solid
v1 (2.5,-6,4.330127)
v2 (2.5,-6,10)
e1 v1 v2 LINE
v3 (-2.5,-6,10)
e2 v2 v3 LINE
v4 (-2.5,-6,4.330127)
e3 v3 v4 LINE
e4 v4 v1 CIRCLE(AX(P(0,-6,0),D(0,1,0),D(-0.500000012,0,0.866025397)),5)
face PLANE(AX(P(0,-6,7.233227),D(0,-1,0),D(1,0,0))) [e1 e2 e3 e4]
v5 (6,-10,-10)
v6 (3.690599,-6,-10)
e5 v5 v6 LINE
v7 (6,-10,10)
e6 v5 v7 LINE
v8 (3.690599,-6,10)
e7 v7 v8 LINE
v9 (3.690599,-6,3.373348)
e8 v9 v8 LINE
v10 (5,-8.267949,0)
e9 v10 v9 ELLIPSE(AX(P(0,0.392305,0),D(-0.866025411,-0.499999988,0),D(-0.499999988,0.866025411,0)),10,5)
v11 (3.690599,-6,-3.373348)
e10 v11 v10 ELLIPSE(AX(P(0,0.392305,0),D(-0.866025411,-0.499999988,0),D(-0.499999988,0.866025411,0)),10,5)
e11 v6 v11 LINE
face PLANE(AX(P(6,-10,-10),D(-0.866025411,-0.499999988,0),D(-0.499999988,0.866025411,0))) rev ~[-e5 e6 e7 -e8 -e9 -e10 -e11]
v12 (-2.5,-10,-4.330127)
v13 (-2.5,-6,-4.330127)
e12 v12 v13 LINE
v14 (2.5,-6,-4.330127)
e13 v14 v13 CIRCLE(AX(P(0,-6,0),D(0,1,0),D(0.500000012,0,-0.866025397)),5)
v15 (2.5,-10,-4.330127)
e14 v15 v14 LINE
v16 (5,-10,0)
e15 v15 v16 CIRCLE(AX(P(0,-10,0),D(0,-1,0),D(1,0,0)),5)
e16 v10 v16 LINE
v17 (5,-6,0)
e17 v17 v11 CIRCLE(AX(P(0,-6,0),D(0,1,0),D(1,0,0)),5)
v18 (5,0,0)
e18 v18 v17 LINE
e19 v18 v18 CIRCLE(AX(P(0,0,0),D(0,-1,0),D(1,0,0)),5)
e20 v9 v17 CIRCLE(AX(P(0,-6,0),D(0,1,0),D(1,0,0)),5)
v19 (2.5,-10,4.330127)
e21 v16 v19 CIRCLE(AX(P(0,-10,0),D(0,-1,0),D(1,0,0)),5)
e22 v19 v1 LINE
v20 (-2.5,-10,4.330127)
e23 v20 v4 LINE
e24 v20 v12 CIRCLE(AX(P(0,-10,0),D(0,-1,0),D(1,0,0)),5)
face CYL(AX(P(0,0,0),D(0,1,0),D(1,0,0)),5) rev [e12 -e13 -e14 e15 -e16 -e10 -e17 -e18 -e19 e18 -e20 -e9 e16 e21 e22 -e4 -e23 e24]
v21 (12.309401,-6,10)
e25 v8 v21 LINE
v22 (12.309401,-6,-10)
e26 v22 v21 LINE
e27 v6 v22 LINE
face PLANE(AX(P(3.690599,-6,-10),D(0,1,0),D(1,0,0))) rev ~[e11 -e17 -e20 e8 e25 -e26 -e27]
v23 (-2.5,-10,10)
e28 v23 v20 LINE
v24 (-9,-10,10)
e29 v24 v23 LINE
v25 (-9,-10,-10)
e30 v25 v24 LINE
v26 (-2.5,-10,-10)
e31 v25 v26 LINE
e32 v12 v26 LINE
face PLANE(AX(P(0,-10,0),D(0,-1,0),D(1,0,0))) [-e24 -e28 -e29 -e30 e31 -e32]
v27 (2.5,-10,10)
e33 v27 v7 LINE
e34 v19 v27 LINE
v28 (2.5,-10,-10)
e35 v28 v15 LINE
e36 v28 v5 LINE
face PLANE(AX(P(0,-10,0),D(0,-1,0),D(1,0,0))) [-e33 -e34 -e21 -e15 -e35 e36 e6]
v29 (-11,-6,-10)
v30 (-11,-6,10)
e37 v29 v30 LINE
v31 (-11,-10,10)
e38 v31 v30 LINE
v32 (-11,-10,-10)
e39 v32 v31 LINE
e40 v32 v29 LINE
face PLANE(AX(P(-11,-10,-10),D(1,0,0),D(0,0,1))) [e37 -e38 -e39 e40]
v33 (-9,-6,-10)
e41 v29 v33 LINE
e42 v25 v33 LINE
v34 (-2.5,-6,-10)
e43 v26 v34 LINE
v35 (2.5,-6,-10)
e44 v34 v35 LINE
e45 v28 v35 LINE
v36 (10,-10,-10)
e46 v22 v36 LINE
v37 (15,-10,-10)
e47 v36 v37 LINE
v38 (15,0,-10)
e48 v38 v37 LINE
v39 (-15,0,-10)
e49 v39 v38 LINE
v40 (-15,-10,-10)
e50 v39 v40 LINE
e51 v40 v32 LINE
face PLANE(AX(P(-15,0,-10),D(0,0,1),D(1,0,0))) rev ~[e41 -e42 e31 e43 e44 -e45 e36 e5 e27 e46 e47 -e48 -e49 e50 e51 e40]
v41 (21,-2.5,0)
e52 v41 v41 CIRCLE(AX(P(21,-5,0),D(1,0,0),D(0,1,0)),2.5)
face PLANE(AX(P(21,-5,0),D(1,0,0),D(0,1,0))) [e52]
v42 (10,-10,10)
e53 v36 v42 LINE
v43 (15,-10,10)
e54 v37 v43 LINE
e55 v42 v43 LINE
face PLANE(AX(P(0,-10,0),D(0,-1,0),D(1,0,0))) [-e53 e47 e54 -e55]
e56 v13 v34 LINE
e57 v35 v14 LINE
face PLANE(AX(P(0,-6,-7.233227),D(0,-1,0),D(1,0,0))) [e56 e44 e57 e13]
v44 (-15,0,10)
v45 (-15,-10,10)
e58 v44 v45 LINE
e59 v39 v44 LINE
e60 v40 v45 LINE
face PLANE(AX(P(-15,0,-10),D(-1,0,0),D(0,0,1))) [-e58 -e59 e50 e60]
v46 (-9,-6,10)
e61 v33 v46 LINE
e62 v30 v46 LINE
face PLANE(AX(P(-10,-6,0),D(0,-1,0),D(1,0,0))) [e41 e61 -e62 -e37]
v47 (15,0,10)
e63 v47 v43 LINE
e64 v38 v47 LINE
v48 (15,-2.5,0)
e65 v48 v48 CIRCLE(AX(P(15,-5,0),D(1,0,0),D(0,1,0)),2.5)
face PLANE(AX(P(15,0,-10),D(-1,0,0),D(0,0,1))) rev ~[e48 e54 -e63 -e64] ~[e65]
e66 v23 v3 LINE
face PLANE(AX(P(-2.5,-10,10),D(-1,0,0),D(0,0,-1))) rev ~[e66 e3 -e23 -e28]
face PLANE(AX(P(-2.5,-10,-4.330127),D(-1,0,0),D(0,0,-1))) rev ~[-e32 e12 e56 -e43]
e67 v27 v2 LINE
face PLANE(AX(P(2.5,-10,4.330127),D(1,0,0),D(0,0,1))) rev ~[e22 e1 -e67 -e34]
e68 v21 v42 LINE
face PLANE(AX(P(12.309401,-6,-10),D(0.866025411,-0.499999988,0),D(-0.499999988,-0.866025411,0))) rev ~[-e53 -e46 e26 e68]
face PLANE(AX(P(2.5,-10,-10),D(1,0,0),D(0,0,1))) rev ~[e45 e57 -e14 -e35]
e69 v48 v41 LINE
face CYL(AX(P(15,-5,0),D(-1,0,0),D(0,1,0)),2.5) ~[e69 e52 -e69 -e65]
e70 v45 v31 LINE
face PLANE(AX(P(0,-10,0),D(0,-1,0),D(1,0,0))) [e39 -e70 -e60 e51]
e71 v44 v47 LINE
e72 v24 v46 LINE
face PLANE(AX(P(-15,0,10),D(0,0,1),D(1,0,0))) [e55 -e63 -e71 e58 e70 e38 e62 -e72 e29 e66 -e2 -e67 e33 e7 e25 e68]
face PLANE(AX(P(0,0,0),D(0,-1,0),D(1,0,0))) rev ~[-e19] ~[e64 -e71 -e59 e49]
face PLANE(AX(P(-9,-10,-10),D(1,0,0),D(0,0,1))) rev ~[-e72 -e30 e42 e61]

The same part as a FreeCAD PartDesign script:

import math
import FreeCAD as App
import Part
import Sketcher
Q = App.Units.Quantity

doc = App.newDocument("Part")
body = doc.addObject("PartDesign::Body", "Body")

sketch1 = body.newObject("Sketcher::SketchObject", "Sketch")
sketch1.AttachmentSupport = (doc.getObject("XZ_Plane"), [""])
sketch1.MapMode = "FlatFace"
sketch1.addGeometry([
    Part.LineSegment(App.Vector(-15, 10, 0), App.Vector(-15, -10, 0)),
    Part.LineSegment(App.Vector(-15, -10, 0), App.Vector(15, -10, 0)),
    Part.LineSegment(App.Vector(15, -10, 0), App.Vector(15, 10, 0)),
    Part.LineSegment(App.Vector(15, 10, 0), App.Vector(-15, 10, 0)),
    Part.Circle(App.Vector(0, 0, 0), App.Vector(0, 0, 1), 5),
], False)
sketch1.addConstraint([
    Sketcher.Constraint("Coincident", 0, 2, 1, 1),
    Sketcher.Constraint("Coincident", 1, 2, 2, 1),
    Sketcher.Constraint("Coincident", 2, 2, 3, 1),
    Sketcher.Constraint("Coincident", 3, 2, 0, 1),
    Sketcher.Constraint("Vertical", 0),
    Sketcher.Constraint("Horizontal", 1),
    Sketcher.Constraint("Vertical", 2),
    Sketcher.Constraint("Horizontal", 3),
    Sketcher.Constraint("Coincident", 4, 3, -1, 1),
    Sketcher.Constraint("Symmetric", 0, 2, 2, 2, -1, 1),
    Sketcher.Constraint("Diameter", 4, 10.0),
    Sketcher.Constraint("DistanceX", 1, 1, 1, 2, 30.0),
    Sketcher.Constraint("DistanceY", 0, 2, 0, 1, 20.0),
])
pad1 = body.newObject("PartDesign::Pad", "Pad")
pad1.Profile = sketch1
pad1.Length = 10

sketch2 = body.newObject("Sketcher::SketchObject", "Sketch001")
sketch2.AttachmentSupport = (doc.getObject("XZ_Plane"), [""])
sketch2.MapMode = "FlatFace"
sketch2.AttachmentOffset = App.Placement(App.Vector(0, 0, 10), App.Rotation())
sketch2.addGeometry([
    Part.LineSegment(App.Vector(-11, 10, 0), App.Vector(-11, -10, 0)),
    Part.LineSegment(App.Vector(-11, -10, 0), App.Vector(-9, -10, 0)),
    Part.LineSegment(App.Vector(-9, -10, 0), App.Vector(-9, 10, 0)),
    Part.LineSegment(App.Vector(-9, 10, 0), App.Vector(-11, 10, 0)),
    Part.LineSegment(App.Vector(2.5, 10, 0), App.Vector(-2.5, 10, 0)),
    Part.LineSegment(App.Vector(-2.5, 10, 0), App.Vector(-2.5, 4.330127, 0)),
    Part.ArcOfCircle(Part.Circle(App.Vector(0, 0, 0), App.Vector(0, 0, 1), 5), math.radians(59.999999), math.radians(120.000001)),
    Part.LineSegment(App.Vector(2.5, 4.330127, 0), App.Vector(2.5, 10, 0)),
    Part.LineSegment(App.Vector(-2.5, -4.330127, 0), App.Vector(-2.5, -10, 0)),
    Part.LineSegment(App.Vector(-2.5, -10, 0), App.Vector(2.5, -10, 0)),
    Part.LineSegment(App.Vector(2.5, -10, 0), App.Vector(2.5, -4.330127, 0)),
    Part.ArcOfCircle(Part.Circle(App.Vector(0, 0, 0), App.Vector(0, 0, 1), 5), math.radians(-120.000001), math.radians(-59.999999)),
], False)
sketch2.addConstraint([
    Sketcher.Constraint("Coincident", 0, 2, 1, 1),
    Sketcher.Constraint("Coincident", 1, 2, 2, 1),
    Sketcher.Constraint("Coincident", 2, 2, 3, 1),
    Sketcher.Constraint("Coincident", 3, 2, 0, 1),
    Sketcher.Constraint("Coincident", 4, 2, 5, 1),
    Sketcher.Constraint("Coincident", 5, 2, 6, 2),
    Sketcher.Constraint("Coincident", 6, 1, 7, 1),
    Sketcher.Constraint("Coincident", 7, 2, 4, 1),
    Sketcher.Constraint("Coincident", 8, 2, 9, 1),
    Sketcher.Constraint("Coincident", 9, 2, 10, 1),
    Sketcher.Constraint("Coincident", 10, 2, 11, 2),
    Sketcher.Constraint("Coincident", 11, 1, 8, 1),
    Sketcher.Constraint("Vertical", 0),
    Sketcher.Constraint("Horizontal", 1),
    Sketcher.Constraint("Vertical", 2),
    Sketcher.Constraint("Horizontal", 3),
    Sketcher.Constraint("Horizontal", 4),
    Sketcher.Constraint("Vertical", 5),
    Sketcher.Constraint("Vertical", 7),
    Sketcher.Constraint("Vertical", 8),
    Sketcher.Constraint("Horizontal", 9),
    Sketcher.Constraint("Vertical", 10),
    Sketcher.Constraint("Coincident", 6, 3, -1, 1),
    Sketcher.Constraint("Coincident", 11, 3, -1, 1),
    Sketcher.Constraint("Equal", 6, 11),
    Sketcher.Constraint("Symmetric", 7, 2, 8, 2, -1, 1),
    Sketcher.Constraint("Horizontal", 3, 2, 4, 2),
    Sketcher.Constraint("Horizontal", 5, 2, 6, 1),
    Sketcher.Constraint("Horizontal", 1, 2, 8, 2),
    Sketcher.Constraint("Horizontal", 10, 2, 11, 1),
    Sketcher.Constraint("Radius", 6, 5.0),
    Sketcher.Constraint("DistanceX", 1, 1, 1, 2, 2.0),
    Sketcher.Constraint("DistanceX", 4, 2, 4, 1, 5.0),
    Sketcher.Constraint("DistanceY", 0, 2, 0, 1, 20.0),
    Sketcher.Constraint("DistanceX", 0, 2, -1, 1, 11.0),
])
pocket1 = body.newObject("PartDesign::Pocket", "Pocket")
pocket1.Profile = sketch2
pocket1.Length = 4

sketch3 = body.newObject("Sketcher::SketchObject", "Sketch002")
sketch3.AttachmentSupport = (doc.getObject("XY_Plane"), [""])
sketch3.MapMode = "FlatFace"
sketch3.AttachmentOffset = App.Placement(App.Vector(0, 0, -10), App.Rotation())
sketch3.addGeometry([
    Part.LineSegment(App.Vector(10, -10, 0), App.Vector(6, -10, 0)),
    Part.LineSegment(App.Vector(6, -10, 0), App.Vector(3.690599, -6, 0)),
    Part.LineSegment(App.Vector(3.690599, -6, 0), App.Vector(12.309401, -6, 0)),
    Part.LineSegment(App.Vector(12.309401, -6, 0), App.Vector(10, -10, 0)),
], False)
sketch3.addConstraint([
    Sketcher.Constraint("Coincident", 0, 2, 1, 1),
    Sketcher.Constraint("Coincident", 1, 2, 2, 1),
    Sketcher.Constraint("Coincident", 2, 2, 3, 1),
    Sketcher.Constraint("Coincident", 3, 2, 0, 1),
    Sketcher.Constraint("Horizontal", 0),
    Sketcher.Constraint("Horizontal", 2),
    Sketcher.Constraint("Equal", 1, 3),
    Sketcher.Constraint("DistanceX", 0, 2, 0, 1, 4.0),
    Sketcher.Constraint("Angle", 1, Q("119.999999 deg")),
    Sketcher.Constraint("DistanceX", -1, 1, 0, 2, 6.0),
    Sketcher.Constraint("DistanceY", 0, 2, -1, 1, 10.0),
    Sketcher.Constraint("DistanceY", 1, 2, -1, 1, 6.0),
])
pocket2 = body.newObject("PartDesign::Pocket", "Pocket001")
pocket2.Profile = sketch3
pocket2.Type = "ThroughAll"
pocket2.Reversed = True

sketch4 = body.newObject("Sketcher::SketchObject", "Sketch003")
sketch4.AttachmentSupport = (doc.getObject("YZ_Plane"), [""])
sketch4.MapMode = "FlatFace"
sketch4.AttachmentOffset = App.Placement(App.Vector(0, 0, 15), App.Rotation())
sketch4.addGeometry(Part.Circle(App.Vector(-5, 0, 0), App.Vector(0, 0, 1), 2.5), False)
sketch4.addConstraint([
    Sketcher.Constraint("PointOnObject", 0, 3, -1),
    Sketcher.Constraint("Diameter", 0, 5.0),
    Sketcher.Constraint("DistanceX", 0, 3, -1, 1, 5.0),
])
pad2 = body.newObject("PartDesign::Pad", "Pad001")
pad2.Profile = sketch4
pad2.Length = 6

doc.recompute()
